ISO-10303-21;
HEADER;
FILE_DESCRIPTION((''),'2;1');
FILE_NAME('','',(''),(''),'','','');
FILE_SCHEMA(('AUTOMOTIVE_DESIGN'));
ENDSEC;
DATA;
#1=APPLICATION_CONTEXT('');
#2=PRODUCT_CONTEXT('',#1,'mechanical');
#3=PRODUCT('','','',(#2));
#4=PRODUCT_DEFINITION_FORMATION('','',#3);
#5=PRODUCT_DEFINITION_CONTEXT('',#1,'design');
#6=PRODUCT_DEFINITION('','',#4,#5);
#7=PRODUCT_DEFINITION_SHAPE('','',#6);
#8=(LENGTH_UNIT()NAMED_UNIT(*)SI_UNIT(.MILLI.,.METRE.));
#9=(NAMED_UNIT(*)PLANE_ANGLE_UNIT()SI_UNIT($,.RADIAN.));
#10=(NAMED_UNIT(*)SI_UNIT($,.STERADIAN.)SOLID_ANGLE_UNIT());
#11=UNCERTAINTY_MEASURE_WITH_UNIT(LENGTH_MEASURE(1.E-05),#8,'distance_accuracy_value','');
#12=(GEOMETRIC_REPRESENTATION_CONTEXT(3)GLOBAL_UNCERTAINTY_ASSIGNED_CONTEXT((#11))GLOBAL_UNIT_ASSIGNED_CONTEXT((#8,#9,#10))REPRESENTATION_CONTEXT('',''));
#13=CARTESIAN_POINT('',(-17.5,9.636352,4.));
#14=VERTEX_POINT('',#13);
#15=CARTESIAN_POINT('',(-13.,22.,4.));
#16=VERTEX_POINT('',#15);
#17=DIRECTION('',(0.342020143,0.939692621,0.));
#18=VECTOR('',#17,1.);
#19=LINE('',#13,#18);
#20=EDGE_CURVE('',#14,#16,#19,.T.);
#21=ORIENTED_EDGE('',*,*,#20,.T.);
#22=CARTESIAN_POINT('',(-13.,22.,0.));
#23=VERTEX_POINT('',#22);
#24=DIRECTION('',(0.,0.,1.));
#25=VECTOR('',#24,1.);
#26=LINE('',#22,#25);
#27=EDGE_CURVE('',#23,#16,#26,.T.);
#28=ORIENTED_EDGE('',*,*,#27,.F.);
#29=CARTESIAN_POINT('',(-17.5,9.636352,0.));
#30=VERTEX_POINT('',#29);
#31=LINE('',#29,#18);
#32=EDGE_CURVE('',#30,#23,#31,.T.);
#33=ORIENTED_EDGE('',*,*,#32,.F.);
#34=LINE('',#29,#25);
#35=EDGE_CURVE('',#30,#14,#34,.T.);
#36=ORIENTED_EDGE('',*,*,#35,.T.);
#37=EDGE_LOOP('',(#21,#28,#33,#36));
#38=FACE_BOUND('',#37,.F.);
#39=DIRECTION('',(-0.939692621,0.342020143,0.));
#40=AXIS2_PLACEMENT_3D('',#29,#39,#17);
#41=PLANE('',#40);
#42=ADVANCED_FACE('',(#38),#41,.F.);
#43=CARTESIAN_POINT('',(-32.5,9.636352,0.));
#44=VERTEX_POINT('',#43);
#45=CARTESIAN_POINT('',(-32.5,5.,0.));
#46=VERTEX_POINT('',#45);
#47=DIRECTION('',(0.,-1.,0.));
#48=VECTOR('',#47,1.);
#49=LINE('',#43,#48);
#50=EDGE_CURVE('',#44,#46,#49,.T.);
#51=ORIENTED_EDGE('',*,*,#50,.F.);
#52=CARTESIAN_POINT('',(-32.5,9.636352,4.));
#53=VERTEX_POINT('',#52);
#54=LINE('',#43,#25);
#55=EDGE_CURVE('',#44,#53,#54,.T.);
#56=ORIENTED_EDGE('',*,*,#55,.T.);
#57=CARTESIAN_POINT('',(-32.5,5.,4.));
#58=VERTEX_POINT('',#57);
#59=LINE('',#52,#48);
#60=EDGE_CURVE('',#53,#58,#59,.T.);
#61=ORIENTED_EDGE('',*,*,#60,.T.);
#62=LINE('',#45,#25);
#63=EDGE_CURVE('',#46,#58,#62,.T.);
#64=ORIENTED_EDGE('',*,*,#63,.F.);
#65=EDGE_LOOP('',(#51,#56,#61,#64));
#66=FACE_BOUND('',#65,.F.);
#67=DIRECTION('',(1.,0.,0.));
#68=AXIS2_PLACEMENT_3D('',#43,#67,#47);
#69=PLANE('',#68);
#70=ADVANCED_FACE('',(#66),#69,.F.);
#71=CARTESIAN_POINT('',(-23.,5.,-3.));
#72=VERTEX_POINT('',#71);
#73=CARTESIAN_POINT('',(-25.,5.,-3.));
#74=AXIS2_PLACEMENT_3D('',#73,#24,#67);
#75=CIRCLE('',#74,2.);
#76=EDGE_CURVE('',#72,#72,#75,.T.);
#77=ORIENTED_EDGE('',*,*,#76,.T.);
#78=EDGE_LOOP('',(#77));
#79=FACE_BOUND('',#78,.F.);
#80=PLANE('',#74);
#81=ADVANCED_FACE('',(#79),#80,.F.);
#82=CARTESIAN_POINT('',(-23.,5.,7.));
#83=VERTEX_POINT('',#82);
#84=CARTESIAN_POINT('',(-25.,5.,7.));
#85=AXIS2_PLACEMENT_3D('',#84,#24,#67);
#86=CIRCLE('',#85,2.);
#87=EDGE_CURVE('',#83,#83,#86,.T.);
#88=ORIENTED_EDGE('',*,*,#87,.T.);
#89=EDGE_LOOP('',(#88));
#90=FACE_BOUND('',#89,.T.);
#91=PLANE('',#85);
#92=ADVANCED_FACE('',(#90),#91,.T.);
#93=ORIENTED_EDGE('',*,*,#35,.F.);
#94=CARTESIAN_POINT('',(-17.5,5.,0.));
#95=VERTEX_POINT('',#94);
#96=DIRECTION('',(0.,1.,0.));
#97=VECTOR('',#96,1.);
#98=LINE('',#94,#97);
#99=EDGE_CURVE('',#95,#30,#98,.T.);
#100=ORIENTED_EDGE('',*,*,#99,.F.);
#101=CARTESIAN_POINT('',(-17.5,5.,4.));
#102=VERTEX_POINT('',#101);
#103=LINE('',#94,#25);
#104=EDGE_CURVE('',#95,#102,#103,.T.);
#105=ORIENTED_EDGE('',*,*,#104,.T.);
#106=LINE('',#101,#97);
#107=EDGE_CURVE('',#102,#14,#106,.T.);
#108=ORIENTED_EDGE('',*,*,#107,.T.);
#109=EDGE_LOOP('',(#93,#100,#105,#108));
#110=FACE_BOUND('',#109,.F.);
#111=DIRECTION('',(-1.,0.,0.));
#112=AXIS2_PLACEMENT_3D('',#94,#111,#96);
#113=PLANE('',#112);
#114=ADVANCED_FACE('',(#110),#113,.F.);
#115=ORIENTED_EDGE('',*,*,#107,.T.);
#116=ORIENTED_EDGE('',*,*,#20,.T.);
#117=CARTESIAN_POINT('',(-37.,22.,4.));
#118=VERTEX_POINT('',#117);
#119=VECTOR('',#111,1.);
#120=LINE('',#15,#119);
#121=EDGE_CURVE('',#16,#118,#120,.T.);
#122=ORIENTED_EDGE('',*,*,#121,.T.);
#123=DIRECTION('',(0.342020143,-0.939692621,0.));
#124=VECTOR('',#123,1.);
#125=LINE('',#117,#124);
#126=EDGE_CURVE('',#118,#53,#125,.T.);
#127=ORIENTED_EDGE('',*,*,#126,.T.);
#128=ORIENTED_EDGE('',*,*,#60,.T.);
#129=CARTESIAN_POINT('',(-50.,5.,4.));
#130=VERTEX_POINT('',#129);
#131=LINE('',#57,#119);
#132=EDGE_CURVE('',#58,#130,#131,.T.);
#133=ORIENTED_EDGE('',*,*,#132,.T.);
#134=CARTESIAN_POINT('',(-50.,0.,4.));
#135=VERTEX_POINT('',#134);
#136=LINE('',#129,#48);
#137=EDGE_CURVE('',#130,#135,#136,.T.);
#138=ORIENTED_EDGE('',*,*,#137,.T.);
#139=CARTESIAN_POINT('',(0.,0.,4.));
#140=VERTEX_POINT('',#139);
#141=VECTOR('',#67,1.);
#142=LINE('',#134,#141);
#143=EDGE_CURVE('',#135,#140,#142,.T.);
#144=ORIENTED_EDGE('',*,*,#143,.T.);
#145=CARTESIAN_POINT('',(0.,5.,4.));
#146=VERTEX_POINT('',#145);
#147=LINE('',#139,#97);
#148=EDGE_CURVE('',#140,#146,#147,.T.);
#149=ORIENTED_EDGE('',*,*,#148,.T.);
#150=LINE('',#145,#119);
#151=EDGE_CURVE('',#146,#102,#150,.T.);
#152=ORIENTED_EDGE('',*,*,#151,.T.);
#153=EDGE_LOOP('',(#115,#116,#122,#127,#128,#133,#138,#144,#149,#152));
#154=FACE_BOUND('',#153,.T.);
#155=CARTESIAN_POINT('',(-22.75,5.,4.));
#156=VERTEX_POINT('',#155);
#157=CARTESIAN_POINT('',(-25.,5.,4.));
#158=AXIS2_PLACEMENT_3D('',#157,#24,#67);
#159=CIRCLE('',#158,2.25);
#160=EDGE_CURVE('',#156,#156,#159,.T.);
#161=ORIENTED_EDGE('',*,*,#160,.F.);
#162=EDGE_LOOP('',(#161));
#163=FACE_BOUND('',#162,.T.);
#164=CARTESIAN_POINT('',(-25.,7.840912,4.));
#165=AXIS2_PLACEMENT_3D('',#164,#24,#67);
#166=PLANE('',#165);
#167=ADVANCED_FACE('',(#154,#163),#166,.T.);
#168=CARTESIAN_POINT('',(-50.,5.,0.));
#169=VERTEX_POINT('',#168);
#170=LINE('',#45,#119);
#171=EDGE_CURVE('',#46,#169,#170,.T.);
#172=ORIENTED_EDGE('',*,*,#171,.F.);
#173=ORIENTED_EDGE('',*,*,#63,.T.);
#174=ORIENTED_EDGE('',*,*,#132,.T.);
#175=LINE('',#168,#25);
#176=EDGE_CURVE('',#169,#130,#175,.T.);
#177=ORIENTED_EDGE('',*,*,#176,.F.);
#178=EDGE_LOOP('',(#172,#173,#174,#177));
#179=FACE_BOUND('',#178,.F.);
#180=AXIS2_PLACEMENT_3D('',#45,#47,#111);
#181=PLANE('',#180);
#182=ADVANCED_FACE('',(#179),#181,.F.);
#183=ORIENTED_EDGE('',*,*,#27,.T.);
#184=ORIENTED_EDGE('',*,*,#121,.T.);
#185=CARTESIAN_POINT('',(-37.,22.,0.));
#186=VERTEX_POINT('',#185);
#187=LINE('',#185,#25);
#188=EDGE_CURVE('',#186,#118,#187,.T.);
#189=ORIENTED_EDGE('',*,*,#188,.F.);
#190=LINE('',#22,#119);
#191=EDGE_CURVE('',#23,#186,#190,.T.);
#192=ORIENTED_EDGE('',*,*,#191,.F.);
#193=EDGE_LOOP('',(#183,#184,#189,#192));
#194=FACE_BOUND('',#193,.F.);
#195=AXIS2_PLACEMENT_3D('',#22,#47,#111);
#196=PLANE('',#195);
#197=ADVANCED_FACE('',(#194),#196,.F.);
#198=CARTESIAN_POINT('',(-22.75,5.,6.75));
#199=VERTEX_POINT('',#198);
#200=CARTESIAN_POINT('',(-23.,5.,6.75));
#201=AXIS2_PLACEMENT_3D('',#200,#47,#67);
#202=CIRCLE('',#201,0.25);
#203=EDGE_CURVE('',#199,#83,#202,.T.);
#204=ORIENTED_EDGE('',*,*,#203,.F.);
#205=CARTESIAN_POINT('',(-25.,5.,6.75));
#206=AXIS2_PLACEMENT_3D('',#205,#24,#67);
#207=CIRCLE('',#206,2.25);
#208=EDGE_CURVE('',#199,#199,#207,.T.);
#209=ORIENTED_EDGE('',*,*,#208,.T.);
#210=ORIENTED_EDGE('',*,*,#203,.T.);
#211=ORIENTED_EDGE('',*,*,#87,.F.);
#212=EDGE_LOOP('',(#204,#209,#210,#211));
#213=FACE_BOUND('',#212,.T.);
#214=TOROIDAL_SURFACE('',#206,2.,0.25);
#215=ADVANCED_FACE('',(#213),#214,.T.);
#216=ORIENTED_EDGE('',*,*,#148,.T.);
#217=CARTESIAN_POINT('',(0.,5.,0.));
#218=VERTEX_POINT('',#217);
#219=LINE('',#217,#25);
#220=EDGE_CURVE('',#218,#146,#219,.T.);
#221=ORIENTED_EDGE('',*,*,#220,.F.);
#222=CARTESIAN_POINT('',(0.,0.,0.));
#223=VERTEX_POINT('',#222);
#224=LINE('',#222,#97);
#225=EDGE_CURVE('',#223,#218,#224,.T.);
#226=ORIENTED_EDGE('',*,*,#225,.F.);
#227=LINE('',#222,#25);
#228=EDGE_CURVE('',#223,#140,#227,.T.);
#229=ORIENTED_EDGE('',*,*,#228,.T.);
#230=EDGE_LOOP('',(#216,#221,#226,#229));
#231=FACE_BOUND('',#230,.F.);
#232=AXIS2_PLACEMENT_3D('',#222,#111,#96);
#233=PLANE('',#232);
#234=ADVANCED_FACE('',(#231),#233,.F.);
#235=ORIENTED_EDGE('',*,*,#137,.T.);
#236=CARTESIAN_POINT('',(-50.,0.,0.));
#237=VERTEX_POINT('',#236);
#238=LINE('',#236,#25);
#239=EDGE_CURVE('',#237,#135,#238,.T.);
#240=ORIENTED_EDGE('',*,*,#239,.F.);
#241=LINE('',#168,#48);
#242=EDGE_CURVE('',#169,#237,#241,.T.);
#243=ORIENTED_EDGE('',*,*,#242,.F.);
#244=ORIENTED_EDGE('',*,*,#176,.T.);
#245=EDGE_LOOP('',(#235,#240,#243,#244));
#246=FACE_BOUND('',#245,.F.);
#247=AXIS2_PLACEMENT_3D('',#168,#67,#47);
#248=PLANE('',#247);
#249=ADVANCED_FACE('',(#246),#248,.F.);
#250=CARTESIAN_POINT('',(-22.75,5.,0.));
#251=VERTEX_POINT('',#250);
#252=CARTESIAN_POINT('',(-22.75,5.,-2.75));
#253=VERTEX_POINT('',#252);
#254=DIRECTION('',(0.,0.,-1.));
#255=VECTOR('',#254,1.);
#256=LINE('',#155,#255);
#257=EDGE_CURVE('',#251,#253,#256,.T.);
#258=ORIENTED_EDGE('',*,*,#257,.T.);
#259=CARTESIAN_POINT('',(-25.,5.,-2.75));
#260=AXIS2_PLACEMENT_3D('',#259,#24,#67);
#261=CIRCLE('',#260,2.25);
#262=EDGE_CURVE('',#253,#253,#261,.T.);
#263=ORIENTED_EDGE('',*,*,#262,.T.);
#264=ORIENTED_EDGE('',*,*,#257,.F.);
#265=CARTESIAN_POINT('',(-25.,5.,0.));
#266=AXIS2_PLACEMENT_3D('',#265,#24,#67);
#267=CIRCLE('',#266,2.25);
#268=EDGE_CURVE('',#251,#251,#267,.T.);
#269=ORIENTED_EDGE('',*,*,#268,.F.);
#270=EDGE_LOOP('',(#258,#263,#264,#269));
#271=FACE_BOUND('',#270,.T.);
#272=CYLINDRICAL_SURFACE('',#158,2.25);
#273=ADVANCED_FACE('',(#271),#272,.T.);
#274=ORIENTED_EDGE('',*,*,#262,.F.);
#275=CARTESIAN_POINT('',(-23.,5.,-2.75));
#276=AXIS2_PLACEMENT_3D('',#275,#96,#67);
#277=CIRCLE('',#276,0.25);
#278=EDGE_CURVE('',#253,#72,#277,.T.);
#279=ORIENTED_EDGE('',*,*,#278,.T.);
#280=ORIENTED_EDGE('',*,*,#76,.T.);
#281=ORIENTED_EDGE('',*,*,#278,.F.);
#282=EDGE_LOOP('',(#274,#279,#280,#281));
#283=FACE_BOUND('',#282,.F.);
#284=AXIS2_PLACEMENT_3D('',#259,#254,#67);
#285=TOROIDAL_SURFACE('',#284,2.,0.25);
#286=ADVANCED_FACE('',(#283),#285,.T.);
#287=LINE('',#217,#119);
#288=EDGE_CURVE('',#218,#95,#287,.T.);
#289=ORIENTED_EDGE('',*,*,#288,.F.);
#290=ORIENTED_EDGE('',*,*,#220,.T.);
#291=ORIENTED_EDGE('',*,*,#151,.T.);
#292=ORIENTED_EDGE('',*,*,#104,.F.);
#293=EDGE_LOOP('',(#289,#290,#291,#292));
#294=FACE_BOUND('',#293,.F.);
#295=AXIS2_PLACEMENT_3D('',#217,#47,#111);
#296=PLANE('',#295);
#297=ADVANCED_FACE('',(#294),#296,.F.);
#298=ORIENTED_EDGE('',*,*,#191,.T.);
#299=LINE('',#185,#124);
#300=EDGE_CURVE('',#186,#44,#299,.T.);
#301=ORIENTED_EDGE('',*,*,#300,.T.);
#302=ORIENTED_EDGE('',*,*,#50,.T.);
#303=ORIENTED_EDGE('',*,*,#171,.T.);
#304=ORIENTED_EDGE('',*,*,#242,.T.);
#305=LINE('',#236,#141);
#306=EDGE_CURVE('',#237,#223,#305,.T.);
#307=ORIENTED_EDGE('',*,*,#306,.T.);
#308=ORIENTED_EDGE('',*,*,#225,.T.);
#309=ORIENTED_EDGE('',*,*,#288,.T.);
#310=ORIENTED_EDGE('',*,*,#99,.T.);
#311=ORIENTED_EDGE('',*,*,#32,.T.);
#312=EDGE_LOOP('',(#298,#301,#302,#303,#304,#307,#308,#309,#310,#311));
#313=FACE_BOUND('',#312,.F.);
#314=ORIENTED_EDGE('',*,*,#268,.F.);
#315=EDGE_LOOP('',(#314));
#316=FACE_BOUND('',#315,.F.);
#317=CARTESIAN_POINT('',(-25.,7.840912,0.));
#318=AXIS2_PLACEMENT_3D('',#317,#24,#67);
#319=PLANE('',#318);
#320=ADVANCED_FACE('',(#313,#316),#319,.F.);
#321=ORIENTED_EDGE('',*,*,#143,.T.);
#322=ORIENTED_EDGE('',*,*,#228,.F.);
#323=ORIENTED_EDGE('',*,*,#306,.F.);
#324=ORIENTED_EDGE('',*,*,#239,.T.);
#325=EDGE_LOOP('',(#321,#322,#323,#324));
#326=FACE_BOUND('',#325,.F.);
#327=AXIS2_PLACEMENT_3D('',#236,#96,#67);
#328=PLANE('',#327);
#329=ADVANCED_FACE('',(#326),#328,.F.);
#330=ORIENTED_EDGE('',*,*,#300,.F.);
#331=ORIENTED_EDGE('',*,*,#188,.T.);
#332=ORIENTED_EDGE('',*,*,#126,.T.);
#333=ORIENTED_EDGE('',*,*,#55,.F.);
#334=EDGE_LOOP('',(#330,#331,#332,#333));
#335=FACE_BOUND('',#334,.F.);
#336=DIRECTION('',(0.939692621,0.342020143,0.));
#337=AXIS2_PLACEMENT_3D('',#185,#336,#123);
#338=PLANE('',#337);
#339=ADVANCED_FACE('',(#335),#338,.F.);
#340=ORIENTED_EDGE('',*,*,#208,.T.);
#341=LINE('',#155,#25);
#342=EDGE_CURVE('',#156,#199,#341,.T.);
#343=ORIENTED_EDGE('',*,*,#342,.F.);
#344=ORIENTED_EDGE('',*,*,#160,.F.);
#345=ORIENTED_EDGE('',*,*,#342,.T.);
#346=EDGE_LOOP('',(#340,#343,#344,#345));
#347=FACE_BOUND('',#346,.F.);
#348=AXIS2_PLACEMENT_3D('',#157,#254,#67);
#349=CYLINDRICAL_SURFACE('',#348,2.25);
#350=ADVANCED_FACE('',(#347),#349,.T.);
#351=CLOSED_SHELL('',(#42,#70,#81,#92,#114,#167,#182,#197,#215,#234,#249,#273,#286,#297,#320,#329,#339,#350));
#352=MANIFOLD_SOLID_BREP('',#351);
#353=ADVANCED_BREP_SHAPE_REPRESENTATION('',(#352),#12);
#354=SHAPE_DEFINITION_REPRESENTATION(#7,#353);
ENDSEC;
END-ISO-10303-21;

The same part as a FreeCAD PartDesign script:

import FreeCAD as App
import Part
import Sketcher
from FreeCAD import Vector
Q = App.Units.Quantity


def edges_at(feature, points):
    """Names of the edges that pass closest to the given points."""
    edges = feature.Shape.Edges
    near = lambda p: min(range(len(edges)), key=lambda i: edges[i].distToShape(Part.Vertex(*p))[0])
    return sorted({f"Edge{near(p) + 1}" for p in points})


def add_polygon(sketch, points):
    """Adds a closed chain of lines whose ends are joined by coincident constraints."""
    first, n = sketch.GeometryCount, len(points)
    for a, b in zip(points, points[1:] + points[:1]):
        sketch.addGeometry(Part.LineSegment(App.Vector(*a, 0), App.Vector(*b, 0)), False)
    for i in range(n):
        sketch.addConstraint(Sketcher.Constraint("Coincident", first + i, 2, first + (i + 1) % n, 1))

doc = App.newDocument("Part")
params = doc.addObject("Spreadsheet::Sheet", "Params")
for row, (alias, value) in enumerate([
    ("sketch1_width", "50 mm"),
    ("sketch1_width2", "24 mm"),
    ("sketch1_height", "5 mm"),
    ("sketch1_width3", "17.5 mm"),
    ("pad1_length", "4 mm"),
    ("sketch2_diameter", "4.5 mm"),
    ("pad2_length", "3 mm"),
    ("pad2_length2", "7 mm"),
    ("fillet_radius", "0.25 mm"),
], start=1):
    params.set(f"A{row}", alias)
    params.set(f"B{row}", "=" + value)
    params.setAlias(f"B{row}", alias)

body = doc.addObject("PartDesign::Body", "Body")

# Sketch on XY plane
sketch1 = body.newObject("Sketcher::SketchObject", "Sketch")
sketch1.AttachmentSupport = (doc.getObject("XY_Plane"), [""])
sketch1.MapMode = "FlatFace"
add_polygon(sketch1, [(-50, 0), (0, 0), (0, 5), (-17.5, 5), (-17.5, 9.6), (-13, 22), (-37, 22), (-32.5, 9.6), (-32.5, 5), (-50, 5)])  # lines 0-9
sketch1.addConstraint([
    Sketcher.Constraint("Horizontal", 0),
    Sketcher.Constraint("Vertical", 1),
    Sketcher.Constraint("Horizontal", 2),
    Sketcher.Constraint("Vertical", 3),
    Sketcher.Constraint("Horizontal", 5),
    Sketcher.Constraint("Vertical", 7),
    Sketcher.Constraint("Horizontal", 8),
    Sketcher.Constraint("Vertical", 9),
    Sketcher.Constraint("Coincident", 0, 2, -1, 1),
    Sketcher.Constraint("Horizontal", 3, 2, 6, 2),
    Sketcher.Constraint("Horizontal", 2, 2, 7, 2),
    Sketcher.Constraint("Equal", 2, 8),
    Sketcher.Constraint("Equal", 4, 6),
    Sketcher.Constraint("DistanceX", 0, 1, 0, 2, 50.0),
    Sketcher.Constraint("DistanceX", 5, 2, 5, 1, 24.0),
    Sketcher.Constraint("DistanceY", 1, 1, 1, 2, 5.0),
    Sketcher.Constraint("Angle", 4, Q("70 deg")),
    Sketcher.Constraint("DistanceX", 2, 2, 2, 1, 17.5),
    Sketcher.Constraint("DistanceY", -1, 1, 4, 2, 22.0),
])
sketch1.setExpression("Constraints[23]", "Params.sketch1_width")
sketch1.setExpression("Constraints[24]", "Params.sketch1_width2")
sketch1.setExpression("Constraints[25]", "Params.sketch1_height")
sketch1.setExpression("Constraints[27]", "Params.sketch1_width3")
pad1 = body.newObject("PartDesign::Pad", "Pad")
pad1.Profile = sketch1
pad1.setExpression("Length", "Params.pad1_length")

# Sketch on XY plane
sketch2 = body.newObject("Sketcher::SketchObject", "Sketch001")
sketch2.AttachmentSupport = (doc.getObject("XY_Plane"), [""])
sketch2.MapMode = "FlatFace"
sketch2.AttachmentOffset = App.Placement(Vector(0, 0, 4), App.Rotation())
sketch2.addGeometry(Part.Circle(Vector(-25, 5, 0), Vector(0, 0, 1), 2.2), False)
sketch2.addConstraint([
    Sketcher.Constraint("Diameter", 0, 4.5),
    Sketcher.Constraint("DistanceX", 0, 3, -1, 1, 25.0),
    Sketcher.Constraint("DistanceY", -1, 1, 0, 3, 5.0),
])
sketch2.setExpression("Constraints[0]", "Params.sketch2_diameter")
pad2 = body.newObject("PartDesign::Pad", "Pad001")
pad2.Profile = sketch2
pad2.Type = "TwoLengths"
pad2.setExpression("Length", "Params.pad2_length")
pad2.setExpression("Length2", "Params.pad2_length2")
doc.recompute()

fillet = body.newObject("PartDesign::Fillet", "Fillet")
fillet.Base = (pad2, edges_at(pad2, [(-27.25, 5, -3), (-27.25, 5, 7)]))
fillet.setExpression("Radius", "Params.fillet_radius")

doc.recompute()
